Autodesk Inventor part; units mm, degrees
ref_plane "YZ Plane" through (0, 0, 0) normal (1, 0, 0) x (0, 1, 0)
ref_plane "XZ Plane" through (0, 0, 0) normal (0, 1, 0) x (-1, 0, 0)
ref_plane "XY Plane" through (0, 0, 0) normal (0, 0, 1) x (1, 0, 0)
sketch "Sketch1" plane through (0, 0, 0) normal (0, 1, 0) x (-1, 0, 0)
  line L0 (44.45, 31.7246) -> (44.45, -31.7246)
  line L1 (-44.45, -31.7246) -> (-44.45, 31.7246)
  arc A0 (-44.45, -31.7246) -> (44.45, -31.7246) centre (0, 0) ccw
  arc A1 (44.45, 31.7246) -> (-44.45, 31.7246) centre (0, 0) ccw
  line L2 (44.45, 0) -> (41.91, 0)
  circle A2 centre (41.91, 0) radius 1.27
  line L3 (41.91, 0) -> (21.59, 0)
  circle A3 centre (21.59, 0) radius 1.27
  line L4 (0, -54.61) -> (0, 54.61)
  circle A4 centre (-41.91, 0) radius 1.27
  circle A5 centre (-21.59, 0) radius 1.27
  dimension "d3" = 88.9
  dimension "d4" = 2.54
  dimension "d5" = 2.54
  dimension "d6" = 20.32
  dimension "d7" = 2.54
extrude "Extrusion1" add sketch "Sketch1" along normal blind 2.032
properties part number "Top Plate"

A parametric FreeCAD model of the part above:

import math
import FreeCAD as App
import Part
import Sketcher
Q = App.Units.Quantity

doc = App.newDocument("Part")
body = doc.addObject("PartDesign::Body", "Body")

sketch1 = body.newObject("Sketcher::SketchObject", "Sketch")
sketch1.AttachmentSupport = (doc.getObject("XZ_Plane"), [""])
sketch1.MapMode = "FlatFace"
sketch1.addGeometry(Part.LineSegment(App.Vector(-44.5, 0, 0), App.Vector(-44.5, 31.7, 0)), False)
sketch1.addGeometry(Part.ArcOfCircle(Part.Circle(App.Vector(0, 0, 0), App.Vector(0, 0, 1), 54.6), math.radians(36), math.radians(144)), False)
sketch1.addGeometry(Part.LineSegment(App.Vector(44.5, 31.7, 0), App.Vector(44.5, -31.7, 0)), False)
sketch1.addGeometry(Part.ArcOfCircle(Part.Circle(App.Vector(0, 0, 0), App.Vector(0, 0, 1), 54.6), math.radians(-144), math.radians(-36)), False)
sketch1.addGeometry(Part.LineSegment(App.Vector(-44.5, -31.7, 0), App.Vector(-44.5, 0, 0)), False)
sketch1.addGeometry(Part.Circle(App.Vector(-21.6, 0, 0), App.Vector(0, 0, 1), 1.3), False)
sketch1.addGeometry(Part.ArcOfCircle(Part.Circle(App.Vector(-41.9, 0, 0), App.Vector(0, 0, 1), 1.3), math.radians(0), math.radians(180)), False)
sketch1.addGeometry(Part.ArcOfCircle(Part.Circle(App.Vector(-41.9, 0, 0), App.Vector(0, 0, 1), 1.3), math.radians(180), math.radians(360)), False)
sketch1.addGeometry(Part.Circle(App.Vector(21.6, 0, 0), App.Vector(0, 0, 1), 1.3), False)
sketch1.addGeometry(Part.Circle(App.Vector(41.9, 0, 0), App.Vector(0, 0, 1), 1.3), False)
sketch1.addConstraint(Sketcher.Constraint("Coincident", 0, 2, 1, 2))
sketch1.addConstraint(Sketcher.Constraint("Coincident", 1, 1, 2, 1))
sketch1.addConstraint(Sketcher.Constraint("Coincident", 2, 2, 3, 2))
sketch1.addConstraint(Sketcher.Constraint("Coincident", 3, 1, 4, 1))
sketch1.addConstraint(Sketcher.Constraint("Coincident", 4, 2, 0, 1))
sketch1.addConstraint(Sketcher.Constraint("Tangent", 6, 1, 7, 2))
sketch1.addConstraint(Sketcher.Constraint("Coincident", 7, 1, 6, 2))
sketch1.addConstraint(Sketcher.Constraint("Vertical", 0))
sketch1.addConstraint(Sketcher.Constraint("Vertical", 2))
sketch1.addConstraint(Sketcher.Constraint("Vertical", 4))
sketch1.addConstraint(Sketcher.Constraint("Coincident", 1, 3, -1, 1))
sketch1.addConstraint(Sketcher.Constraint("Coincident", 3, 3, -1, 1))
sketch1.addConstraint(Sketcher.Constraint("Equal", 1, 3))
sketch1.addConstraint(Sketcher.Constraint("Equal", 5, 6))
sketch1.addConstraint(Sketcher.Constraint("Equal", 7, 8))
sketch1.addConstraint(Sketcher.Constraint("Equal", 8, 9))
sketch1.addConstraint(Sketcher.Constraint("Symmetric", 5, 3, 8, 3, -1, 1))
sketch1.addConstraint(Sketcher.Constraint("Symmetric", 6, 3, 9, 3, -1, 1))
sketch1.addConstraint(Sketcher.Constraint("PointOnObject", 5, 3, -1))
sketch1.addConstraint(Sketcher.Constraint("PointOnObject", 6, 3, -1))
sketch1.addConstraint(Sketcher.Constraint("PointOnObject", 4, 2, -1))
sketch1.addConstraint(Sketcher.Constraint("PointOnObject", 6, 1, -1))
sketch1.addConstraint(Sketcher.Constraint("PointOnObject", 7, 1, -1))
sketch1.addConstraint(Sketcher.Constraint("Horizontal", 0, 2, 1, 1))
sketch1.addConstraint(Sketcher.Constraint("Diameter", 5, Q("0.1 in")))
sketch1.addConstraint(Sketcher.Constraint("DistanceX", 6, 3, 5, 3, Q("0.8 in")))
sketch1.addConstraint(Sketcher.Constraint("DistanceX", 0, 2, 6, 3, Q("0.1 in")))
sketch1.addConstraint(Sketcher.Constraint("Radius", 1, Q("2.15 in")))
sketch1.addConstraint(Sketcher.Constraint("DistanceX", 6, 1, -1, 1, Q("1.6 in")))
pad1 = body.newObject("PartDesign::Pad", "Pad")
pad1.Profile = sketch1
pad1.Length = Q("0.08 in")
pad1.Reversed = True

doc.recompute()
